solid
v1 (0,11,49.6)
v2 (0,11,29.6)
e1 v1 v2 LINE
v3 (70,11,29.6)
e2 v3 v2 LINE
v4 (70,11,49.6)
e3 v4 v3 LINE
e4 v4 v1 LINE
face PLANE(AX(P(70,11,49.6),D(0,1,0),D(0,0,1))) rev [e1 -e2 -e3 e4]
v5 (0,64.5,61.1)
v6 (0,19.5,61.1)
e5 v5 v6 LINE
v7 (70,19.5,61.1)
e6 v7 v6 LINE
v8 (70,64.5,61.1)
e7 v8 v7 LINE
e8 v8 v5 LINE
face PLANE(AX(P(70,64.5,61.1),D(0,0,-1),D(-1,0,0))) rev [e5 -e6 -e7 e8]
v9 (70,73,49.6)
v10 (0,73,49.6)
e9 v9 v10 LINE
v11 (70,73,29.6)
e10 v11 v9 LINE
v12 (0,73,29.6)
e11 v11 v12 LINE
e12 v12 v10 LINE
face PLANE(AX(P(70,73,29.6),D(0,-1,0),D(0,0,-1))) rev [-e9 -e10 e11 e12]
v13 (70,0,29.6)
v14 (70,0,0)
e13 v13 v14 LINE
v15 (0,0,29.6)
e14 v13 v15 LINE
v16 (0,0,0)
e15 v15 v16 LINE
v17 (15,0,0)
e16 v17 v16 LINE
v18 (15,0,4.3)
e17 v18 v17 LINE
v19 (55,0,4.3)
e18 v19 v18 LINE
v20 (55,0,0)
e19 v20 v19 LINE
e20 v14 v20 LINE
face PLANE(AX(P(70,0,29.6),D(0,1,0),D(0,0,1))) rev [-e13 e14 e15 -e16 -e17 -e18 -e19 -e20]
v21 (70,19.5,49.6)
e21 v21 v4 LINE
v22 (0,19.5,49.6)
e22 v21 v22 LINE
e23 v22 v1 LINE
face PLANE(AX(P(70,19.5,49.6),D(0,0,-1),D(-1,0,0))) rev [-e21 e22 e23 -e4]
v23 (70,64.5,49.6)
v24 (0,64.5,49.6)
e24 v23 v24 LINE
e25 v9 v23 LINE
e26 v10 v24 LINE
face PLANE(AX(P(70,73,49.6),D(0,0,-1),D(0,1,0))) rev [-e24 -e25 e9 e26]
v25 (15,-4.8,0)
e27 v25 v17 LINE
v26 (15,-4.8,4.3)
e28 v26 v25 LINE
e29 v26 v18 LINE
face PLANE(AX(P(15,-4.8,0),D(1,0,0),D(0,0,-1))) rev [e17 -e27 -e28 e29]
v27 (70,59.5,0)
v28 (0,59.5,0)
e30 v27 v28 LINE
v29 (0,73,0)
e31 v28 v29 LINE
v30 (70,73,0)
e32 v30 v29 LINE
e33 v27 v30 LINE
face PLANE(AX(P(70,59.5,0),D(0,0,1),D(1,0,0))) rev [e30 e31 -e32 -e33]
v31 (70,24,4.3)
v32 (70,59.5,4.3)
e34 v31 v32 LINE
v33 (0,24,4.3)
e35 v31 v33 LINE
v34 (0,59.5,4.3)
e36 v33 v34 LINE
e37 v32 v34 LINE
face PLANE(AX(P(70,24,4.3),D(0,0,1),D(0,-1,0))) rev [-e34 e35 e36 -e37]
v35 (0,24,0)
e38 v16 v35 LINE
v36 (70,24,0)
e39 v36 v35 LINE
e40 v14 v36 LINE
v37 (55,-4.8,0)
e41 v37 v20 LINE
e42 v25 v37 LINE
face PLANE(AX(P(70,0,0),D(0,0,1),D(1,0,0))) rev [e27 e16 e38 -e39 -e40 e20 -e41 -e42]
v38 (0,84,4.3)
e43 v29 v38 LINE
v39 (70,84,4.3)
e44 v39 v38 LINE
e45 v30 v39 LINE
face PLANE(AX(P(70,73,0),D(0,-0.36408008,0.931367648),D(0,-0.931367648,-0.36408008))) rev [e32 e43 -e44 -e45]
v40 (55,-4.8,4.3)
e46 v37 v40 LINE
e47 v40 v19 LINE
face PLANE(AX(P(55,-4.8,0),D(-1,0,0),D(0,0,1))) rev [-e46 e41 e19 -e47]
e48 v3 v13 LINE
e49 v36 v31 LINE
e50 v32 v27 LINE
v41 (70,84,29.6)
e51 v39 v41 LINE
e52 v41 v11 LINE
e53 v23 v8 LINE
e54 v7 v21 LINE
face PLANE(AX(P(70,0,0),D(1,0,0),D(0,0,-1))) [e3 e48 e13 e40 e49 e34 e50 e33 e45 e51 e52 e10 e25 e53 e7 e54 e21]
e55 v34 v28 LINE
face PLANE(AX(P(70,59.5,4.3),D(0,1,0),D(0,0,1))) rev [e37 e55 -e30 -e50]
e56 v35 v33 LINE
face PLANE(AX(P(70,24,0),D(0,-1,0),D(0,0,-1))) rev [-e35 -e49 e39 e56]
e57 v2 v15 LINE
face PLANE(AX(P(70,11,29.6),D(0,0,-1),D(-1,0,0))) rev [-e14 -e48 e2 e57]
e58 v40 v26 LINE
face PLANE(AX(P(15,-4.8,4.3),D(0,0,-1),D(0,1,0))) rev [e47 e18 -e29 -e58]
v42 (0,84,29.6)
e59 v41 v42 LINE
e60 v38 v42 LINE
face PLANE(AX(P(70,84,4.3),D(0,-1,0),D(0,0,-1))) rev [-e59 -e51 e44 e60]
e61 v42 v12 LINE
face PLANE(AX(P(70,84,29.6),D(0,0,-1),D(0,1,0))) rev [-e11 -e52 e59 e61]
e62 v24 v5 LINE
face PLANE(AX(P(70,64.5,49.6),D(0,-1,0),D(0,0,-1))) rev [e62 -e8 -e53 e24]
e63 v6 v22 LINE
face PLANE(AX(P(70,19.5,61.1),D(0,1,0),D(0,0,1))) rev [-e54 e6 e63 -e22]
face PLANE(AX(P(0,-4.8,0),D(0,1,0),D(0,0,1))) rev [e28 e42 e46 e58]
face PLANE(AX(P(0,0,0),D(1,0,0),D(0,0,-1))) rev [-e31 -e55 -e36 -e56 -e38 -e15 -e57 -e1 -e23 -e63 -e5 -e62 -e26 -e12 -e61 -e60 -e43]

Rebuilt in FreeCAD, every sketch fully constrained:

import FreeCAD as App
import Part
import Sketcher
Q = App.Units.Quantity

doc = App.newDocument("Part")
params = doc.addObject("Spreadsheet::Sheet", "Params")
for row, (alias, value) in enumerate([
    ("sketch1_width", "45 mm"),
    ("sketch1_width2", "11 mm"),
    ("sketch1_width3", "24 mm"),
    ("sketch1_height", "20 mm"),
    ("sketch1_width4", "8.5 mm"),
    ("pad1_length", "70 mm"),
    ("sketch2_width", "40 mm"),
    ("sketch2_height", "4.3 mm"),
    ("pad2_length", "4.8 mm"),
], start=1):
    params.set(f"A{row}", alias)
    params.set(f"B{row}", "=" + value)
    params.setAlias(f"B{row}", alias)

body = doc.addObject("PartDesign::Body", "Body")

sketch1 = body.newObject("Sketcher::SketchObject", "Sketch")
sketch1.AttachmentSupport = (doc.getObject("YZ_Plane"), [""])
sketch1.MapMode = "FlatFace"
sketch1.addGeometry(Part.LineSegment(App.Vector(64.5, 61.1, 0), App.Vector(19.5, 61.1, 0)), False)
sketch1.addGeometry(Part.LineSegment(App.Vector(19.5, 61.1, 0), App.Vector(19.5, 49.6, 0)), False)
sketch1.addGeometry(Part.LineSegment(App.Vector(19.5, 49.6, 0), App.Vector(11, 49.6, 0)), False)
sketch1.addGeometry(Part.LineSegment(App.Vector(11, 49.6, 0), App.Vector(11, 29.6, 0)), False)
sketch1.addGeometry(Part.LineSegment(App.Vector(11, 29.6, 0), App.Vector(0, 29.6, 0)), False)
sketch1.addGeometry(Part.LineSegment(App.Vector(0, 29.6, 0), App.Vector(0, 0, 0)), False)
sketch1.addGeometry(Part.LineSegment(App.Vector(0, 0, 0), App.Vector(24, 0, 0)), False)
sketch1.addGeometry(Part.LineSegment(App.Vector(24, 0, 0), App.Vector(24, 4.3, 0)), False)
sketch1.addGeometry(Part.LineSegment(App.Vector(24, 4.3, 0), App.Vector(59.5, 4.3, 0)), False)
sketch1.addGeometry(Part.LineSegment(App.Vector(59.5, 4.3, 0), App.Vector(59.5, 0, 0)), False)
sketch1.addGeometry(Part.LineSegment(App.Vector(59.5, 0, 0), App.Vector(73, 0, 0)), False)
sketch1.addGeometry(Part.LineSegment(App.Vector(73, 0, 0), App.Vector(84, 4.3, 0)), False)
sketch1.addGeometry(Part.LineSegment(App.Vector(84, 4.3, 0), App.Vector(84, 29.6, 0)), False)
sketch1.addGeometry(Part.LineSegment(App.Vector(84, 29.6, 0), App.Vector(73, 29.6, 0)), False)
sketch1.addGeometry(Part.LineSegment(App.Vector(73, 29.6, 0), App.Vector(73, 49.6, 0)), False)
sketch1.addGeometry(Part.LineSegment(App.Vector(73, 49.6, 0), App.Vector(64.5, 49.6, 0)), False)
sketch1.addGeometry(Part.LineSegment(App.Vector(64.5, 49.6, 0), App.Vector(64.5, 61.1, 0)), False)
sketch1.addConstraint(Sketcher.Constraint("Coincident", 0, 2, 1, 1))
sketch1.addConstraint(Sketcher.Constraint("Coincident", 1, 2, 2, 1))
sketch1.addConstraint(Sketcher.Constraint("Coincident", 2, 2, 3, 1))
sketch1.addConstraint(Sketcher.Constraint("Coincident", 3, 2, 4, 1))
sketch1.addConstraint(Sketcher.Constraint("Coincident", 4, 2, 5, 1))
sketch1.addConstraint(Sketcher.Constraint("Coincident", 5, 2, 6, 1))
sketch1.addConstraint(Sketcher.Constraint("Coincident", 6, 2, 7, 1))
sketch1.addConstraint(Sketcher.Constraint("Coincident", 7, 2, 8, 1))
sketch1.addConstraint(Sketcher.Constraint("Coincident", 8, 2, 9, 1))
sketch1.addConstraint(Sketcher.Constraint("Coincident", 9, 2, 10, 1))
sketch1.addConstraint(Sketcher.Constraint("Coincident", 10, 2, 11, 1))
sketch1.addConstraint(Sketcher.Constraint("Coincident", 11, 2, 12, 1))
sketch1.addConstraint(Sketcher.Constraint("Coincident", 12, 2, 13, 1))
sketch1.addConstraint(Sketcher.Constraint("Coincident", 13, 2, 14, 1))
sketch1.addConstraint(Sketcher.Constraint("Coincident", 14, 2, 15, 1))
sketch1.addConstraint(Sketcher.Constraint("Coincident", 15, 2, 16, 1))
sketch1.addConstraint(Sketcher.Constraint("Coincident", 16, 2, 0, 1))
sketch1.addConstraint(Sketcher.Constraint("Horizontal", 0))
sketch1.addConstraint(Sketcher.Constraint("Vertical", 1))
sketch1.addConstraint(Sketcher.Constraint("Horizontal", 2))
sketch1.addConstraint(Sketcher.Constraint("Vertical", 3))
sketch1.addConstraint(Sketcher.Constraint("Horizontal", 4))
sketch1.addConstraint(Sketcher.Constraint("Vertical", 5))
sketch1.addConstraint(Sketcher.Constraint("Horizontal", 6))
sketch1.addConstraint(Sketcher.Constraint("Vertical", 7))
sketch1.addConstraint(Sketcher.Constraint("Horizontal", 8))
sketch1.addConstraint(Sketcher.Constraint("Vertical", 9))
sketch1.addConstraint(Sketcher.Constraint("Horizontal", 10))
sketch1.addConstraint(Sketcher.Constraint("Vertical", 12))
sketch1.addConstraint(Sketcher.Constraint("Horizontal", 13))
sketch1.addConstraint(Sketcher.Constraint("Vertical", 14))
sketch1.addConstraint(Sketcher.Constraint("Horizontal", 15))
sketch1.addConstraint(Sketcher.Constraint("Vertical", 16))
sketch1.addConstraint(Sketcher.Constraint("Coincident", 5, 2, -1, 1))
sketch1.addConstraint(Sketcher.Constraint("PointOnObject", 9, 2, -1))
sketch1.addConstraint(Sketcher.Constraint("Horizontal", 8, 2, 11, 2))
sketch1.addConstraint(Sketcher.Constraint("Horizontal", 4, 2, 12, 2))
sketch1.addConstraint(Sketcher.Constraint("Horizontal", 2, 2, 14, 2))
sketch1.addConstraint(Sketcher.Constraint("Vertical", 10, 2, 13, 2))
sketch1.addConstraint(Sketcher.Constraint("Equal", 4, 13))
sketch1.addConstraint(Sketcher.Constraint("Equal", 2, 15))
sketch1.addConstraint(Sketcher.Constraint("DistanceX", 0, 2, 0, 1, Q("45 mm")))
sketch1.addConstraint(Sketcher.Constraint("DistanceX", 4, 2, 4, 1, Q("11 mm")))
sketch1.addConstraint(Sketcher.Constraint("DistanceX", 6, 1, 6, 2, Q("24 mm")))
sketch1.addConstraint(Sketcher.Constraint("DistanceY", 3, 2, 3, 1, Q("20 mm")))
sketch1.addConstraint(Sketcher.Constraint("DistanceX", 2, 2, 2, 1, Q("8.5 mm")))
sketch1.addConstraint(Sketcher.Constraint("DistanceX", 8, 1, 8, 2, Q("35.5 mm")))
sketch1.addConstraint(Sketcher.Constraint("DistanceY", 1, 2, 1, 1, Q("11.5 mm")))
sketch1.addConstraint(Sketcher.Constraint("DistanceY", 5, 2, 5, 1, Q("29.6 mm")))
sketch1.addConstraint(Sketcher.Constraint("DistanceY", 7, 1, 7, 2, Q("4.3 mm")))
sketch1.setExpression("Constraints[41]", "Params.sketch1_width")
sketch1.setExpression("Constraints[42]", "Params.sketch1_width2")
sketch1.setExpression("Constraints[43]", "Params.sketch1_width3")
sketch1.setExpression("Constraints[44]", "Params.sketch1_height")
sketch1.setExpression("Constraints[45]", "Params.sketch1_width4")
pad1 = body.newObject("PartDesign::Pad", "Pad")
pad1.Profile = sketch1
pad1.setExpression("Length", "Params.pad1_length")

sketch2 = body.newObject("Sketcher::SketchObject", "Sketch001")
sketch2.AttachmentSupport = (doc.getObject("XZ_Plane"), [""])
sketch2.MapMode = "FlatFace"
sketch2.addGeometry(Part.LineSegment(App.Vector(15, 4.3, 0), App.Vector(15, 0, 0)), False)
sketch2.addGeometry(Part.LineSegment(App.Vector(15, 0, 0), App.Vector(55, 0, 0)), False)
sketch2.addGeometry(Part.LineSegment(App.Vector(55, 0, 0), App.Vector(55, 4.3, 0)), False)
sketch2.addGeometry(Part.LineSegment(App.Vector(55, 4.3, 0), App.Vector(15, 4.3, 0)), False)
sketch2.addConstraint(Sketcher.Constraint("Coincident", 0, 2, 1, 1))
sketch2.addConstraint(Sketcher.Constraint("Coincident", 1, 2, 2, 1))
sketch2.addConstraint(Sketcher.Constraint("Coincident", 2, 2, 3, 1))
sketch2.addConstraint(Sketcher.Constraint("Coincident", 3, 2, 0, 1))
sketch2.addConstraint(Sketcher.Constraint("Vertical", 0))
sketch2.addConstraint(Sketcher.Constraint("Horizontal", 1))
sketch2.addConstraint(Sketcher.Constraint("Vertical", 2))
sketch2.addConstraint(Sketcher.Constraint("Horizontal", 3))
sketch2.addConstraint(Sketcher.Constraint("PointOnObject", 0, 2, -1))
sketch2.addConstraint(Sketcher.Constraint("DistanceX", 1, 1, 1, 2, Q("40 mm")))
sketch2.addConstraint(Sketcher.Constraint("DistanceY", 0, 2, 0, 1, Q("4.3 mm")))
sketch2.addConstraint(Sketcher.Constraint("DistanceX", -1, 1, 0, 2, Q("15 mm")))
sketch2.setExpression("Constraints[9]", "Params.sketch2_width")
sketch2.setExpression("Constraints[10]", "Params.sketch2_height")
pad2 = body.newObject("PartDesign::Pad", "Pad001")
pad2.Profile = sketch2
pad2.setExpression("Length", "Params.pad2_length")

doc.recompute()
